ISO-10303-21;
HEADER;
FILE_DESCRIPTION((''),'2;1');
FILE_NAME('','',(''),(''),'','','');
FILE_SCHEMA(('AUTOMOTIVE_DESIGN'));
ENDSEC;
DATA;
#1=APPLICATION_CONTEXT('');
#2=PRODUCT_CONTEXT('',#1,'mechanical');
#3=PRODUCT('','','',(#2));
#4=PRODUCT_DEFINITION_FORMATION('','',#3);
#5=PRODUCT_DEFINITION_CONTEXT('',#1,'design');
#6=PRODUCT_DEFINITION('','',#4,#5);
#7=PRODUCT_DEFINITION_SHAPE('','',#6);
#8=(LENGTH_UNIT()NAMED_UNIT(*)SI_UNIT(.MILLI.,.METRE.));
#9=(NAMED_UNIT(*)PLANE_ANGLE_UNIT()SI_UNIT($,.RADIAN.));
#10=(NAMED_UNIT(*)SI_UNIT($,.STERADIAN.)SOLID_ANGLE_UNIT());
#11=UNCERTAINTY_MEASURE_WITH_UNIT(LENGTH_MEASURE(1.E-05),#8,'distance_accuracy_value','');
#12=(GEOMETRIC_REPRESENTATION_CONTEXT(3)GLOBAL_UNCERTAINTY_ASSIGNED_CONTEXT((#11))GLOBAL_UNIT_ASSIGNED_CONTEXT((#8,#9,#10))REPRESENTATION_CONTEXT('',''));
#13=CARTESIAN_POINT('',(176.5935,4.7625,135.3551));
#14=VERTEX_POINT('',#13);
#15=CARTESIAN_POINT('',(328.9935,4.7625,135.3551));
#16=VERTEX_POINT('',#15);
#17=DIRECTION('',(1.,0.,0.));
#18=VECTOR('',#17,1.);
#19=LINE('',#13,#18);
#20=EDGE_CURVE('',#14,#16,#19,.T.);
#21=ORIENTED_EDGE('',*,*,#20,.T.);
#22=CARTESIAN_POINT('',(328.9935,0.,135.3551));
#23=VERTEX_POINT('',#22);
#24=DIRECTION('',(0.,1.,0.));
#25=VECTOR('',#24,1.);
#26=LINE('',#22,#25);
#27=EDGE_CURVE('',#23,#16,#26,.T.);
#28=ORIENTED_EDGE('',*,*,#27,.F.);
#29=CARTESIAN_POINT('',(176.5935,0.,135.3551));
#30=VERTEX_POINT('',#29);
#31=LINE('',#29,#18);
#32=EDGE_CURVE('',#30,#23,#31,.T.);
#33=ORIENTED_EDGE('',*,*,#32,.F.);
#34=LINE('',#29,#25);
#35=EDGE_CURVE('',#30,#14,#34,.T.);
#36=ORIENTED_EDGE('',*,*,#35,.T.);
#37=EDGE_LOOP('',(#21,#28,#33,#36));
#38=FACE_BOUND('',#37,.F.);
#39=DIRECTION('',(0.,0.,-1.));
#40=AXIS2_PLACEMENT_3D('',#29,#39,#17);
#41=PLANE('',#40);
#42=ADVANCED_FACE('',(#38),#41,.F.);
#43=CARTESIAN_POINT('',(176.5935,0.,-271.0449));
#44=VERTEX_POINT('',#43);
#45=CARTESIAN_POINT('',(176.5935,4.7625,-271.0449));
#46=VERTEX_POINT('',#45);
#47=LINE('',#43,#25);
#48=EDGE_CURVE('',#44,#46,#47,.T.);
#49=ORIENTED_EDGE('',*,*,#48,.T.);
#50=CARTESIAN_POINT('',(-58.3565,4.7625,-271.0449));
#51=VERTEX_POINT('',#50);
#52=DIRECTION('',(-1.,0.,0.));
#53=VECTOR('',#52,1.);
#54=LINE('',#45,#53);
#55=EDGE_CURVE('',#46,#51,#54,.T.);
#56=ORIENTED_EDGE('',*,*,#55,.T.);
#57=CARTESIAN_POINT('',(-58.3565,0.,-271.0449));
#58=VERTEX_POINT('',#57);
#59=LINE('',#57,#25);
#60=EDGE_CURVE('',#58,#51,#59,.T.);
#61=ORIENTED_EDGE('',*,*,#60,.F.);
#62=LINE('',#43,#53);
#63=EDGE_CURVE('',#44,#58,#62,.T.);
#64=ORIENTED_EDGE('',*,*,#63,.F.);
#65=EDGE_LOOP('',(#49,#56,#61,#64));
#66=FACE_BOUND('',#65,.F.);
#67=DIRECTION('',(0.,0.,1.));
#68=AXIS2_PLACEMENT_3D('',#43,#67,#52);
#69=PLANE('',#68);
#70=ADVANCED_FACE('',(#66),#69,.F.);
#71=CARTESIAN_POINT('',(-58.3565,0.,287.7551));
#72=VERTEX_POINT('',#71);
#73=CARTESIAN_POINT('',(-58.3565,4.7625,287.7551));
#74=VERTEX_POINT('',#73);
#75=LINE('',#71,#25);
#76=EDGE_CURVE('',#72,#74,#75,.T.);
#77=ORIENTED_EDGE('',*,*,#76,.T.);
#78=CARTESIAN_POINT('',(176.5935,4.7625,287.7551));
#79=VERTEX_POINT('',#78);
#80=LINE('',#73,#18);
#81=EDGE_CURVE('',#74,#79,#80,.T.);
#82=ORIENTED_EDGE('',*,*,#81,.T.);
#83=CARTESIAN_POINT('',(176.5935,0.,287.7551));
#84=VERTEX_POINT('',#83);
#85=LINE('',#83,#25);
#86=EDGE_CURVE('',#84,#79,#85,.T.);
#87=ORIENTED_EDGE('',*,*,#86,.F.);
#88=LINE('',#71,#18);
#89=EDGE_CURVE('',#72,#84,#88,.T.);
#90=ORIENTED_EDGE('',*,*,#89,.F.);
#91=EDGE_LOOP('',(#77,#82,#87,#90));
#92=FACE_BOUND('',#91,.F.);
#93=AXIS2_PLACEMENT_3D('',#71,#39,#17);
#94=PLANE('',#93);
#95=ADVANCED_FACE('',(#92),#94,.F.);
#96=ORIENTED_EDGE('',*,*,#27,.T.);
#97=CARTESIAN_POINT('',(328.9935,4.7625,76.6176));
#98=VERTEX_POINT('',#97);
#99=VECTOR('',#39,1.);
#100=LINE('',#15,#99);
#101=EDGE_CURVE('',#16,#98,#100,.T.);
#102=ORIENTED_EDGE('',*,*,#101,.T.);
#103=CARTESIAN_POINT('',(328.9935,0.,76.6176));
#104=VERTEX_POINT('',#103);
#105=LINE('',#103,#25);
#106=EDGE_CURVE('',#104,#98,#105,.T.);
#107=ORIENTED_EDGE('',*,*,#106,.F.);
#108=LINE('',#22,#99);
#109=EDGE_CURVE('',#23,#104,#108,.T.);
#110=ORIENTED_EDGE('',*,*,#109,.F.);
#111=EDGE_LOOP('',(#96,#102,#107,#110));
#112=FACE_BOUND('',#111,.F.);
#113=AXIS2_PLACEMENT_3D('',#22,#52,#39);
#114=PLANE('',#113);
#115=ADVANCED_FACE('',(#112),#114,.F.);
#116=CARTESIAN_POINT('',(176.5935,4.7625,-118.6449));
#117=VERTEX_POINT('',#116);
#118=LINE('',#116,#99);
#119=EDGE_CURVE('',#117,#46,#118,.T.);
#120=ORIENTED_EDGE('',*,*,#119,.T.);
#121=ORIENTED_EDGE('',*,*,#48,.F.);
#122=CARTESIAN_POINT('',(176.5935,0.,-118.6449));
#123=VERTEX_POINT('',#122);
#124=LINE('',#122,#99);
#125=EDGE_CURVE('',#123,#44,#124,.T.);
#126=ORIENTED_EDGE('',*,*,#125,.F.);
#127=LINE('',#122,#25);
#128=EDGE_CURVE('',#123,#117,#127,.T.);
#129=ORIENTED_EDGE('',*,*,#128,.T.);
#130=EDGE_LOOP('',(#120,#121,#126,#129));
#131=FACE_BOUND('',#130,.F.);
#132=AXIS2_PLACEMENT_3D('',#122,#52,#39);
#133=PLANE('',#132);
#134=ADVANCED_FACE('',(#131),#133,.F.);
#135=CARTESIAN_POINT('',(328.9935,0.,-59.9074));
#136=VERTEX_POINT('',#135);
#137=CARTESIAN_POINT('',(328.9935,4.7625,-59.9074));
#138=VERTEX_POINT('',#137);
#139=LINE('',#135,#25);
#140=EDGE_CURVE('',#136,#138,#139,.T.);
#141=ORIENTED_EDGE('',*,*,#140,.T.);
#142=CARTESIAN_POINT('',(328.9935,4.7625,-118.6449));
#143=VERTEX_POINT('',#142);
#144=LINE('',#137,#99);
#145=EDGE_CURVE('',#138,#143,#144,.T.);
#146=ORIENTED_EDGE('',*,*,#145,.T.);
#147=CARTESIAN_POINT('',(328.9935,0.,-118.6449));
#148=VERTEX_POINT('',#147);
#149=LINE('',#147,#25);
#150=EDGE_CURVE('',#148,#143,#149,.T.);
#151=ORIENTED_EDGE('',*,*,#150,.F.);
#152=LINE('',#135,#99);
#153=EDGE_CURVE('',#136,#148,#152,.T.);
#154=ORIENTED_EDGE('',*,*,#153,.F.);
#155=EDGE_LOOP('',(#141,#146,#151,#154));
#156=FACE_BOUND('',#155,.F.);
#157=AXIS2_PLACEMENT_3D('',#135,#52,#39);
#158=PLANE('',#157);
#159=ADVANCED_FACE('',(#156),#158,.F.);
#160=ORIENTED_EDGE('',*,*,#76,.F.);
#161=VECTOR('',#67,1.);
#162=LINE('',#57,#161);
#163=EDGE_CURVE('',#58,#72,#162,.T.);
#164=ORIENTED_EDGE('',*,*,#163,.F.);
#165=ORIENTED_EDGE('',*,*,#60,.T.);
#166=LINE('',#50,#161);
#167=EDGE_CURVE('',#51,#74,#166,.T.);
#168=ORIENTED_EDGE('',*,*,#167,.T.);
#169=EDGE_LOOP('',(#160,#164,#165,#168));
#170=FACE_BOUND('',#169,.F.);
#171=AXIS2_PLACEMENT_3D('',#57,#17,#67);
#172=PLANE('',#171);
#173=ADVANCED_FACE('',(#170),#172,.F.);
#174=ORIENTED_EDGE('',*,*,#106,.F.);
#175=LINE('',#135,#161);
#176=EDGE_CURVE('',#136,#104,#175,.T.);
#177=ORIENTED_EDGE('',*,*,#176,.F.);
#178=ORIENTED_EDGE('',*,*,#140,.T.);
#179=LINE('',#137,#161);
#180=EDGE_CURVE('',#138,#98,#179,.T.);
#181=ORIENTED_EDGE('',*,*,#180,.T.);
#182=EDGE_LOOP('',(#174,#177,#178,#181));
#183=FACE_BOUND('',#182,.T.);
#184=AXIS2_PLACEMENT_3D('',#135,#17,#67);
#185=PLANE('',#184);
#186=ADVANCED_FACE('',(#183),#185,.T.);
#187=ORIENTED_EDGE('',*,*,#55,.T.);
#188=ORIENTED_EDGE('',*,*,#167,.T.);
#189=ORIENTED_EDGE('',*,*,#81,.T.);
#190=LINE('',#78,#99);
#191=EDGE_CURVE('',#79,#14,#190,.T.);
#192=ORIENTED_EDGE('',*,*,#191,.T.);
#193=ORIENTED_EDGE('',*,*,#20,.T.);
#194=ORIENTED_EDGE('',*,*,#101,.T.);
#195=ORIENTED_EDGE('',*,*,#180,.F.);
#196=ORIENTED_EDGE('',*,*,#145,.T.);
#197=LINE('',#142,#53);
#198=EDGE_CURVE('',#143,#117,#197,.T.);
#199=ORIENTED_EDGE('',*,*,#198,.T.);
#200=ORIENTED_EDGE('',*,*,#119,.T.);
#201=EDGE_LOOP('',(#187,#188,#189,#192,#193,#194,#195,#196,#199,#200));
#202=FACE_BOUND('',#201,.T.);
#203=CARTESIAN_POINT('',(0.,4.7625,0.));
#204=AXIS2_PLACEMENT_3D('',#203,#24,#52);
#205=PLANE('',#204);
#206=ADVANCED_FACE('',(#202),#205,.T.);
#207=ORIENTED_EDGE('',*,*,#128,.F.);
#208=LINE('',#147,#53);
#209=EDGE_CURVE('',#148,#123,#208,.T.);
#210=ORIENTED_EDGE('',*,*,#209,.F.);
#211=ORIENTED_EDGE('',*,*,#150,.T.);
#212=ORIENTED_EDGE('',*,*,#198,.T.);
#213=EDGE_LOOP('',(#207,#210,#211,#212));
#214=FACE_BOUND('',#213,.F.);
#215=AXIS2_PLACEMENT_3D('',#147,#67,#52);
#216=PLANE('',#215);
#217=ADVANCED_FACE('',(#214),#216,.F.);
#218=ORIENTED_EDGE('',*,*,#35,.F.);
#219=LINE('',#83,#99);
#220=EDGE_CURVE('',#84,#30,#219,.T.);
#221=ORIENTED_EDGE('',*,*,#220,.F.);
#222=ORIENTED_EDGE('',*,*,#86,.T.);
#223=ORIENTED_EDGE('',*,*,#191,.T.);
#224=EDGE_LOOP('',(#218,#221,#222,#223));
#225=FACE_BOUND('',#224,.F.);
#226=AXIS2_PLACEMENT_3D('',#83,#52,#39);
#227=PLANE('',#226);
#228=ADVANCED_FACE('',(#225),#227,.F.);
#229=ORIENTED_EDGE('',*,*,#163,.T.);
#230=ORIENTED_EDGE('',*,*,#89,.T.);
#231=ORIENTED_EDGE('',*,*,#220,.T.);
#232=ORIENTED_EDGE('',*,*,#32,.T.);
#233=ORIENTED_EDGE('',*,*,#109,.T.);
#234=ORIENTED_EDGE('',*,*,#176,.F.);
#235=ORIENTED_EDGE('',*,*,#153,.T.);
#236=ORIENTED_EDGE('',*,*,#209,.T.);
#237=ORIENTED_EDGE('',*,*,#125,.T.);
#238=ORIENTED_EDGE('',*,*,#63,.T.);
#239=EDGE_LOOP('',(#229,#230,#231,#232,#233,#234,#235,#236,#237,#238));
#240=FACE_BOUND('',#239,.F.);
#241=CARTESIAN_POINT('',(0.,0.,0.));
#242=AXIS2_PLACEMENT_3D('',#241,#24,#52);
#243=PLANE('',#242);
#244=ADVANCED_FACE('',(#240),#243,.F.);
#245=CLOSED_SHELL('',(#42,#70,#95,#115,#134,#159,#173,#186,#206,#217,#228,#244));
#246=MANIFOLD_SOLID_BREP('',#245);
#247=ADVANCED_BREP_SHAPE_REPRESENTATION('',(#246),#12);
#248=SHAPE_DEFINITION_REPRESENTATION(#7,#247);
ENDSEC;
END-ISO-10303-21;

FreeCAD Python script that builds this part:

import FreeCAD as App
import Part
import Sketcher
from FreeCAD import Vector
Q = App.Units.Quantity


def add_polygon(sketch, points):
    """Adds a closed chain of lines whose ends are joined by coincident constraints."""
    first, n = sketch.GeometryCount, len(points)
    for a, b in zip(points, points[1:] + points[:1]):
        sketch.addGeometry(Part.LineSegment(App.Vector(*a, 0), App.Vector(*b, 0)), False)
    for i in range(n):
        sketch.addConstraint(Sketcher.Constraint("Coincident", first + i, 2, first + (i + 1) % n, 1))

doc = App.newDocument("Part")
params = doc.addObject("Spreadsheet::Sheet", "Params")
for row, (alias, value) in enumerate([
    ("sketch1_width", "6 in"),
    ("sketch1_height", "22 in"),
    ("sketch1_width2", "9.25 in"),
    ("pad1_length", "0.1875 in"),
], start=1):
    params.set(f"A{row}", alias)
    params.set(f"B{row}", "=" + value)
    params.setAlias(f"B{row}", alias)

body = doc.addObject("PartDesign::Body", "Body")

sketch1 = body.newObject("Sketcher::SketchObject", "Sketch")
sketch1.AttachmentSupport = (doc.getObject("XZ_Plane"), [""])
sketch1.MapMode = "FlatFace"
add_polygon(sketch1, [(-58, -271), (-58, 288), (177, 288), (177, 135), (329, 135), (329, -119), (177, -119), (177, -271)])
sketch1.addConstraint(Sketcher.Constraint("Vertical", 0))
sketch1.addConstraint(Sketcher.Constraint("Horizontal", 1))
sketch1.addConstraint(Sketcher.Constraint("Vertical", 2))
sketch1.addConstraint(Sketcher.Constraint("Horizontal", 3))
sketch1.addConstraint(Sketcher.Constraint("Vertical", 4))
sketch1.addConstraint(Sketcher.Constraint("Horizontal", 5))
sketch1.addConstraint(Sketcher.Constraint("Vertical", 6))
sketch1.addConstraint(Sketcher.Constraint("Horizontal", 7))
sketch1.addConstraint(Sketcher.Constraint("Vertical", 2, 2, 5, 2))
sketch1.addConstraint(Sketcher.Constraint("Equal", 5, 2))
sketch1.addConstraint(Sketcher.Constraint("Equal", 2, 6))
sketch1.addConstraint(Sketcher.Constraint("DistanceX", 3, 1, 3, 2, Q("6 in")))
sketch1.addConstraint(Sketcher.Constraint("DistanceY", 0, 1, 0, 2, Q("22 in")))
sketch1.addConstraint(Sketcher.Constraint("DistanceX", 1, 1, 1, 2, Q("9.25 in")))
sketch1.addConstraint(Sketcher.Constraint("DistanceX", 0, 2, -1, 1, Q("2.2975 in")))
sketch1.addConstraint(Sketcher.Constraint("DistanceY", -1, 1, 0, 2, Q("287.755 mm")))
sketch1.setExpression("Constraints[19]", "Params.sketch1_width")
sketch1.setExpression("Constraints[20]", "Params.sketch1_height")
sketch1.setExpression("Constraints[21]", "Params.sketch1_width2")
pad1 = body.newObject("PartDesign::Pad", "Pad")
pad1.Profile = sketch1
pad1.setExpression("Length", "Params.pad1_length")
pad1.Reversed = True

doc.recompute()
